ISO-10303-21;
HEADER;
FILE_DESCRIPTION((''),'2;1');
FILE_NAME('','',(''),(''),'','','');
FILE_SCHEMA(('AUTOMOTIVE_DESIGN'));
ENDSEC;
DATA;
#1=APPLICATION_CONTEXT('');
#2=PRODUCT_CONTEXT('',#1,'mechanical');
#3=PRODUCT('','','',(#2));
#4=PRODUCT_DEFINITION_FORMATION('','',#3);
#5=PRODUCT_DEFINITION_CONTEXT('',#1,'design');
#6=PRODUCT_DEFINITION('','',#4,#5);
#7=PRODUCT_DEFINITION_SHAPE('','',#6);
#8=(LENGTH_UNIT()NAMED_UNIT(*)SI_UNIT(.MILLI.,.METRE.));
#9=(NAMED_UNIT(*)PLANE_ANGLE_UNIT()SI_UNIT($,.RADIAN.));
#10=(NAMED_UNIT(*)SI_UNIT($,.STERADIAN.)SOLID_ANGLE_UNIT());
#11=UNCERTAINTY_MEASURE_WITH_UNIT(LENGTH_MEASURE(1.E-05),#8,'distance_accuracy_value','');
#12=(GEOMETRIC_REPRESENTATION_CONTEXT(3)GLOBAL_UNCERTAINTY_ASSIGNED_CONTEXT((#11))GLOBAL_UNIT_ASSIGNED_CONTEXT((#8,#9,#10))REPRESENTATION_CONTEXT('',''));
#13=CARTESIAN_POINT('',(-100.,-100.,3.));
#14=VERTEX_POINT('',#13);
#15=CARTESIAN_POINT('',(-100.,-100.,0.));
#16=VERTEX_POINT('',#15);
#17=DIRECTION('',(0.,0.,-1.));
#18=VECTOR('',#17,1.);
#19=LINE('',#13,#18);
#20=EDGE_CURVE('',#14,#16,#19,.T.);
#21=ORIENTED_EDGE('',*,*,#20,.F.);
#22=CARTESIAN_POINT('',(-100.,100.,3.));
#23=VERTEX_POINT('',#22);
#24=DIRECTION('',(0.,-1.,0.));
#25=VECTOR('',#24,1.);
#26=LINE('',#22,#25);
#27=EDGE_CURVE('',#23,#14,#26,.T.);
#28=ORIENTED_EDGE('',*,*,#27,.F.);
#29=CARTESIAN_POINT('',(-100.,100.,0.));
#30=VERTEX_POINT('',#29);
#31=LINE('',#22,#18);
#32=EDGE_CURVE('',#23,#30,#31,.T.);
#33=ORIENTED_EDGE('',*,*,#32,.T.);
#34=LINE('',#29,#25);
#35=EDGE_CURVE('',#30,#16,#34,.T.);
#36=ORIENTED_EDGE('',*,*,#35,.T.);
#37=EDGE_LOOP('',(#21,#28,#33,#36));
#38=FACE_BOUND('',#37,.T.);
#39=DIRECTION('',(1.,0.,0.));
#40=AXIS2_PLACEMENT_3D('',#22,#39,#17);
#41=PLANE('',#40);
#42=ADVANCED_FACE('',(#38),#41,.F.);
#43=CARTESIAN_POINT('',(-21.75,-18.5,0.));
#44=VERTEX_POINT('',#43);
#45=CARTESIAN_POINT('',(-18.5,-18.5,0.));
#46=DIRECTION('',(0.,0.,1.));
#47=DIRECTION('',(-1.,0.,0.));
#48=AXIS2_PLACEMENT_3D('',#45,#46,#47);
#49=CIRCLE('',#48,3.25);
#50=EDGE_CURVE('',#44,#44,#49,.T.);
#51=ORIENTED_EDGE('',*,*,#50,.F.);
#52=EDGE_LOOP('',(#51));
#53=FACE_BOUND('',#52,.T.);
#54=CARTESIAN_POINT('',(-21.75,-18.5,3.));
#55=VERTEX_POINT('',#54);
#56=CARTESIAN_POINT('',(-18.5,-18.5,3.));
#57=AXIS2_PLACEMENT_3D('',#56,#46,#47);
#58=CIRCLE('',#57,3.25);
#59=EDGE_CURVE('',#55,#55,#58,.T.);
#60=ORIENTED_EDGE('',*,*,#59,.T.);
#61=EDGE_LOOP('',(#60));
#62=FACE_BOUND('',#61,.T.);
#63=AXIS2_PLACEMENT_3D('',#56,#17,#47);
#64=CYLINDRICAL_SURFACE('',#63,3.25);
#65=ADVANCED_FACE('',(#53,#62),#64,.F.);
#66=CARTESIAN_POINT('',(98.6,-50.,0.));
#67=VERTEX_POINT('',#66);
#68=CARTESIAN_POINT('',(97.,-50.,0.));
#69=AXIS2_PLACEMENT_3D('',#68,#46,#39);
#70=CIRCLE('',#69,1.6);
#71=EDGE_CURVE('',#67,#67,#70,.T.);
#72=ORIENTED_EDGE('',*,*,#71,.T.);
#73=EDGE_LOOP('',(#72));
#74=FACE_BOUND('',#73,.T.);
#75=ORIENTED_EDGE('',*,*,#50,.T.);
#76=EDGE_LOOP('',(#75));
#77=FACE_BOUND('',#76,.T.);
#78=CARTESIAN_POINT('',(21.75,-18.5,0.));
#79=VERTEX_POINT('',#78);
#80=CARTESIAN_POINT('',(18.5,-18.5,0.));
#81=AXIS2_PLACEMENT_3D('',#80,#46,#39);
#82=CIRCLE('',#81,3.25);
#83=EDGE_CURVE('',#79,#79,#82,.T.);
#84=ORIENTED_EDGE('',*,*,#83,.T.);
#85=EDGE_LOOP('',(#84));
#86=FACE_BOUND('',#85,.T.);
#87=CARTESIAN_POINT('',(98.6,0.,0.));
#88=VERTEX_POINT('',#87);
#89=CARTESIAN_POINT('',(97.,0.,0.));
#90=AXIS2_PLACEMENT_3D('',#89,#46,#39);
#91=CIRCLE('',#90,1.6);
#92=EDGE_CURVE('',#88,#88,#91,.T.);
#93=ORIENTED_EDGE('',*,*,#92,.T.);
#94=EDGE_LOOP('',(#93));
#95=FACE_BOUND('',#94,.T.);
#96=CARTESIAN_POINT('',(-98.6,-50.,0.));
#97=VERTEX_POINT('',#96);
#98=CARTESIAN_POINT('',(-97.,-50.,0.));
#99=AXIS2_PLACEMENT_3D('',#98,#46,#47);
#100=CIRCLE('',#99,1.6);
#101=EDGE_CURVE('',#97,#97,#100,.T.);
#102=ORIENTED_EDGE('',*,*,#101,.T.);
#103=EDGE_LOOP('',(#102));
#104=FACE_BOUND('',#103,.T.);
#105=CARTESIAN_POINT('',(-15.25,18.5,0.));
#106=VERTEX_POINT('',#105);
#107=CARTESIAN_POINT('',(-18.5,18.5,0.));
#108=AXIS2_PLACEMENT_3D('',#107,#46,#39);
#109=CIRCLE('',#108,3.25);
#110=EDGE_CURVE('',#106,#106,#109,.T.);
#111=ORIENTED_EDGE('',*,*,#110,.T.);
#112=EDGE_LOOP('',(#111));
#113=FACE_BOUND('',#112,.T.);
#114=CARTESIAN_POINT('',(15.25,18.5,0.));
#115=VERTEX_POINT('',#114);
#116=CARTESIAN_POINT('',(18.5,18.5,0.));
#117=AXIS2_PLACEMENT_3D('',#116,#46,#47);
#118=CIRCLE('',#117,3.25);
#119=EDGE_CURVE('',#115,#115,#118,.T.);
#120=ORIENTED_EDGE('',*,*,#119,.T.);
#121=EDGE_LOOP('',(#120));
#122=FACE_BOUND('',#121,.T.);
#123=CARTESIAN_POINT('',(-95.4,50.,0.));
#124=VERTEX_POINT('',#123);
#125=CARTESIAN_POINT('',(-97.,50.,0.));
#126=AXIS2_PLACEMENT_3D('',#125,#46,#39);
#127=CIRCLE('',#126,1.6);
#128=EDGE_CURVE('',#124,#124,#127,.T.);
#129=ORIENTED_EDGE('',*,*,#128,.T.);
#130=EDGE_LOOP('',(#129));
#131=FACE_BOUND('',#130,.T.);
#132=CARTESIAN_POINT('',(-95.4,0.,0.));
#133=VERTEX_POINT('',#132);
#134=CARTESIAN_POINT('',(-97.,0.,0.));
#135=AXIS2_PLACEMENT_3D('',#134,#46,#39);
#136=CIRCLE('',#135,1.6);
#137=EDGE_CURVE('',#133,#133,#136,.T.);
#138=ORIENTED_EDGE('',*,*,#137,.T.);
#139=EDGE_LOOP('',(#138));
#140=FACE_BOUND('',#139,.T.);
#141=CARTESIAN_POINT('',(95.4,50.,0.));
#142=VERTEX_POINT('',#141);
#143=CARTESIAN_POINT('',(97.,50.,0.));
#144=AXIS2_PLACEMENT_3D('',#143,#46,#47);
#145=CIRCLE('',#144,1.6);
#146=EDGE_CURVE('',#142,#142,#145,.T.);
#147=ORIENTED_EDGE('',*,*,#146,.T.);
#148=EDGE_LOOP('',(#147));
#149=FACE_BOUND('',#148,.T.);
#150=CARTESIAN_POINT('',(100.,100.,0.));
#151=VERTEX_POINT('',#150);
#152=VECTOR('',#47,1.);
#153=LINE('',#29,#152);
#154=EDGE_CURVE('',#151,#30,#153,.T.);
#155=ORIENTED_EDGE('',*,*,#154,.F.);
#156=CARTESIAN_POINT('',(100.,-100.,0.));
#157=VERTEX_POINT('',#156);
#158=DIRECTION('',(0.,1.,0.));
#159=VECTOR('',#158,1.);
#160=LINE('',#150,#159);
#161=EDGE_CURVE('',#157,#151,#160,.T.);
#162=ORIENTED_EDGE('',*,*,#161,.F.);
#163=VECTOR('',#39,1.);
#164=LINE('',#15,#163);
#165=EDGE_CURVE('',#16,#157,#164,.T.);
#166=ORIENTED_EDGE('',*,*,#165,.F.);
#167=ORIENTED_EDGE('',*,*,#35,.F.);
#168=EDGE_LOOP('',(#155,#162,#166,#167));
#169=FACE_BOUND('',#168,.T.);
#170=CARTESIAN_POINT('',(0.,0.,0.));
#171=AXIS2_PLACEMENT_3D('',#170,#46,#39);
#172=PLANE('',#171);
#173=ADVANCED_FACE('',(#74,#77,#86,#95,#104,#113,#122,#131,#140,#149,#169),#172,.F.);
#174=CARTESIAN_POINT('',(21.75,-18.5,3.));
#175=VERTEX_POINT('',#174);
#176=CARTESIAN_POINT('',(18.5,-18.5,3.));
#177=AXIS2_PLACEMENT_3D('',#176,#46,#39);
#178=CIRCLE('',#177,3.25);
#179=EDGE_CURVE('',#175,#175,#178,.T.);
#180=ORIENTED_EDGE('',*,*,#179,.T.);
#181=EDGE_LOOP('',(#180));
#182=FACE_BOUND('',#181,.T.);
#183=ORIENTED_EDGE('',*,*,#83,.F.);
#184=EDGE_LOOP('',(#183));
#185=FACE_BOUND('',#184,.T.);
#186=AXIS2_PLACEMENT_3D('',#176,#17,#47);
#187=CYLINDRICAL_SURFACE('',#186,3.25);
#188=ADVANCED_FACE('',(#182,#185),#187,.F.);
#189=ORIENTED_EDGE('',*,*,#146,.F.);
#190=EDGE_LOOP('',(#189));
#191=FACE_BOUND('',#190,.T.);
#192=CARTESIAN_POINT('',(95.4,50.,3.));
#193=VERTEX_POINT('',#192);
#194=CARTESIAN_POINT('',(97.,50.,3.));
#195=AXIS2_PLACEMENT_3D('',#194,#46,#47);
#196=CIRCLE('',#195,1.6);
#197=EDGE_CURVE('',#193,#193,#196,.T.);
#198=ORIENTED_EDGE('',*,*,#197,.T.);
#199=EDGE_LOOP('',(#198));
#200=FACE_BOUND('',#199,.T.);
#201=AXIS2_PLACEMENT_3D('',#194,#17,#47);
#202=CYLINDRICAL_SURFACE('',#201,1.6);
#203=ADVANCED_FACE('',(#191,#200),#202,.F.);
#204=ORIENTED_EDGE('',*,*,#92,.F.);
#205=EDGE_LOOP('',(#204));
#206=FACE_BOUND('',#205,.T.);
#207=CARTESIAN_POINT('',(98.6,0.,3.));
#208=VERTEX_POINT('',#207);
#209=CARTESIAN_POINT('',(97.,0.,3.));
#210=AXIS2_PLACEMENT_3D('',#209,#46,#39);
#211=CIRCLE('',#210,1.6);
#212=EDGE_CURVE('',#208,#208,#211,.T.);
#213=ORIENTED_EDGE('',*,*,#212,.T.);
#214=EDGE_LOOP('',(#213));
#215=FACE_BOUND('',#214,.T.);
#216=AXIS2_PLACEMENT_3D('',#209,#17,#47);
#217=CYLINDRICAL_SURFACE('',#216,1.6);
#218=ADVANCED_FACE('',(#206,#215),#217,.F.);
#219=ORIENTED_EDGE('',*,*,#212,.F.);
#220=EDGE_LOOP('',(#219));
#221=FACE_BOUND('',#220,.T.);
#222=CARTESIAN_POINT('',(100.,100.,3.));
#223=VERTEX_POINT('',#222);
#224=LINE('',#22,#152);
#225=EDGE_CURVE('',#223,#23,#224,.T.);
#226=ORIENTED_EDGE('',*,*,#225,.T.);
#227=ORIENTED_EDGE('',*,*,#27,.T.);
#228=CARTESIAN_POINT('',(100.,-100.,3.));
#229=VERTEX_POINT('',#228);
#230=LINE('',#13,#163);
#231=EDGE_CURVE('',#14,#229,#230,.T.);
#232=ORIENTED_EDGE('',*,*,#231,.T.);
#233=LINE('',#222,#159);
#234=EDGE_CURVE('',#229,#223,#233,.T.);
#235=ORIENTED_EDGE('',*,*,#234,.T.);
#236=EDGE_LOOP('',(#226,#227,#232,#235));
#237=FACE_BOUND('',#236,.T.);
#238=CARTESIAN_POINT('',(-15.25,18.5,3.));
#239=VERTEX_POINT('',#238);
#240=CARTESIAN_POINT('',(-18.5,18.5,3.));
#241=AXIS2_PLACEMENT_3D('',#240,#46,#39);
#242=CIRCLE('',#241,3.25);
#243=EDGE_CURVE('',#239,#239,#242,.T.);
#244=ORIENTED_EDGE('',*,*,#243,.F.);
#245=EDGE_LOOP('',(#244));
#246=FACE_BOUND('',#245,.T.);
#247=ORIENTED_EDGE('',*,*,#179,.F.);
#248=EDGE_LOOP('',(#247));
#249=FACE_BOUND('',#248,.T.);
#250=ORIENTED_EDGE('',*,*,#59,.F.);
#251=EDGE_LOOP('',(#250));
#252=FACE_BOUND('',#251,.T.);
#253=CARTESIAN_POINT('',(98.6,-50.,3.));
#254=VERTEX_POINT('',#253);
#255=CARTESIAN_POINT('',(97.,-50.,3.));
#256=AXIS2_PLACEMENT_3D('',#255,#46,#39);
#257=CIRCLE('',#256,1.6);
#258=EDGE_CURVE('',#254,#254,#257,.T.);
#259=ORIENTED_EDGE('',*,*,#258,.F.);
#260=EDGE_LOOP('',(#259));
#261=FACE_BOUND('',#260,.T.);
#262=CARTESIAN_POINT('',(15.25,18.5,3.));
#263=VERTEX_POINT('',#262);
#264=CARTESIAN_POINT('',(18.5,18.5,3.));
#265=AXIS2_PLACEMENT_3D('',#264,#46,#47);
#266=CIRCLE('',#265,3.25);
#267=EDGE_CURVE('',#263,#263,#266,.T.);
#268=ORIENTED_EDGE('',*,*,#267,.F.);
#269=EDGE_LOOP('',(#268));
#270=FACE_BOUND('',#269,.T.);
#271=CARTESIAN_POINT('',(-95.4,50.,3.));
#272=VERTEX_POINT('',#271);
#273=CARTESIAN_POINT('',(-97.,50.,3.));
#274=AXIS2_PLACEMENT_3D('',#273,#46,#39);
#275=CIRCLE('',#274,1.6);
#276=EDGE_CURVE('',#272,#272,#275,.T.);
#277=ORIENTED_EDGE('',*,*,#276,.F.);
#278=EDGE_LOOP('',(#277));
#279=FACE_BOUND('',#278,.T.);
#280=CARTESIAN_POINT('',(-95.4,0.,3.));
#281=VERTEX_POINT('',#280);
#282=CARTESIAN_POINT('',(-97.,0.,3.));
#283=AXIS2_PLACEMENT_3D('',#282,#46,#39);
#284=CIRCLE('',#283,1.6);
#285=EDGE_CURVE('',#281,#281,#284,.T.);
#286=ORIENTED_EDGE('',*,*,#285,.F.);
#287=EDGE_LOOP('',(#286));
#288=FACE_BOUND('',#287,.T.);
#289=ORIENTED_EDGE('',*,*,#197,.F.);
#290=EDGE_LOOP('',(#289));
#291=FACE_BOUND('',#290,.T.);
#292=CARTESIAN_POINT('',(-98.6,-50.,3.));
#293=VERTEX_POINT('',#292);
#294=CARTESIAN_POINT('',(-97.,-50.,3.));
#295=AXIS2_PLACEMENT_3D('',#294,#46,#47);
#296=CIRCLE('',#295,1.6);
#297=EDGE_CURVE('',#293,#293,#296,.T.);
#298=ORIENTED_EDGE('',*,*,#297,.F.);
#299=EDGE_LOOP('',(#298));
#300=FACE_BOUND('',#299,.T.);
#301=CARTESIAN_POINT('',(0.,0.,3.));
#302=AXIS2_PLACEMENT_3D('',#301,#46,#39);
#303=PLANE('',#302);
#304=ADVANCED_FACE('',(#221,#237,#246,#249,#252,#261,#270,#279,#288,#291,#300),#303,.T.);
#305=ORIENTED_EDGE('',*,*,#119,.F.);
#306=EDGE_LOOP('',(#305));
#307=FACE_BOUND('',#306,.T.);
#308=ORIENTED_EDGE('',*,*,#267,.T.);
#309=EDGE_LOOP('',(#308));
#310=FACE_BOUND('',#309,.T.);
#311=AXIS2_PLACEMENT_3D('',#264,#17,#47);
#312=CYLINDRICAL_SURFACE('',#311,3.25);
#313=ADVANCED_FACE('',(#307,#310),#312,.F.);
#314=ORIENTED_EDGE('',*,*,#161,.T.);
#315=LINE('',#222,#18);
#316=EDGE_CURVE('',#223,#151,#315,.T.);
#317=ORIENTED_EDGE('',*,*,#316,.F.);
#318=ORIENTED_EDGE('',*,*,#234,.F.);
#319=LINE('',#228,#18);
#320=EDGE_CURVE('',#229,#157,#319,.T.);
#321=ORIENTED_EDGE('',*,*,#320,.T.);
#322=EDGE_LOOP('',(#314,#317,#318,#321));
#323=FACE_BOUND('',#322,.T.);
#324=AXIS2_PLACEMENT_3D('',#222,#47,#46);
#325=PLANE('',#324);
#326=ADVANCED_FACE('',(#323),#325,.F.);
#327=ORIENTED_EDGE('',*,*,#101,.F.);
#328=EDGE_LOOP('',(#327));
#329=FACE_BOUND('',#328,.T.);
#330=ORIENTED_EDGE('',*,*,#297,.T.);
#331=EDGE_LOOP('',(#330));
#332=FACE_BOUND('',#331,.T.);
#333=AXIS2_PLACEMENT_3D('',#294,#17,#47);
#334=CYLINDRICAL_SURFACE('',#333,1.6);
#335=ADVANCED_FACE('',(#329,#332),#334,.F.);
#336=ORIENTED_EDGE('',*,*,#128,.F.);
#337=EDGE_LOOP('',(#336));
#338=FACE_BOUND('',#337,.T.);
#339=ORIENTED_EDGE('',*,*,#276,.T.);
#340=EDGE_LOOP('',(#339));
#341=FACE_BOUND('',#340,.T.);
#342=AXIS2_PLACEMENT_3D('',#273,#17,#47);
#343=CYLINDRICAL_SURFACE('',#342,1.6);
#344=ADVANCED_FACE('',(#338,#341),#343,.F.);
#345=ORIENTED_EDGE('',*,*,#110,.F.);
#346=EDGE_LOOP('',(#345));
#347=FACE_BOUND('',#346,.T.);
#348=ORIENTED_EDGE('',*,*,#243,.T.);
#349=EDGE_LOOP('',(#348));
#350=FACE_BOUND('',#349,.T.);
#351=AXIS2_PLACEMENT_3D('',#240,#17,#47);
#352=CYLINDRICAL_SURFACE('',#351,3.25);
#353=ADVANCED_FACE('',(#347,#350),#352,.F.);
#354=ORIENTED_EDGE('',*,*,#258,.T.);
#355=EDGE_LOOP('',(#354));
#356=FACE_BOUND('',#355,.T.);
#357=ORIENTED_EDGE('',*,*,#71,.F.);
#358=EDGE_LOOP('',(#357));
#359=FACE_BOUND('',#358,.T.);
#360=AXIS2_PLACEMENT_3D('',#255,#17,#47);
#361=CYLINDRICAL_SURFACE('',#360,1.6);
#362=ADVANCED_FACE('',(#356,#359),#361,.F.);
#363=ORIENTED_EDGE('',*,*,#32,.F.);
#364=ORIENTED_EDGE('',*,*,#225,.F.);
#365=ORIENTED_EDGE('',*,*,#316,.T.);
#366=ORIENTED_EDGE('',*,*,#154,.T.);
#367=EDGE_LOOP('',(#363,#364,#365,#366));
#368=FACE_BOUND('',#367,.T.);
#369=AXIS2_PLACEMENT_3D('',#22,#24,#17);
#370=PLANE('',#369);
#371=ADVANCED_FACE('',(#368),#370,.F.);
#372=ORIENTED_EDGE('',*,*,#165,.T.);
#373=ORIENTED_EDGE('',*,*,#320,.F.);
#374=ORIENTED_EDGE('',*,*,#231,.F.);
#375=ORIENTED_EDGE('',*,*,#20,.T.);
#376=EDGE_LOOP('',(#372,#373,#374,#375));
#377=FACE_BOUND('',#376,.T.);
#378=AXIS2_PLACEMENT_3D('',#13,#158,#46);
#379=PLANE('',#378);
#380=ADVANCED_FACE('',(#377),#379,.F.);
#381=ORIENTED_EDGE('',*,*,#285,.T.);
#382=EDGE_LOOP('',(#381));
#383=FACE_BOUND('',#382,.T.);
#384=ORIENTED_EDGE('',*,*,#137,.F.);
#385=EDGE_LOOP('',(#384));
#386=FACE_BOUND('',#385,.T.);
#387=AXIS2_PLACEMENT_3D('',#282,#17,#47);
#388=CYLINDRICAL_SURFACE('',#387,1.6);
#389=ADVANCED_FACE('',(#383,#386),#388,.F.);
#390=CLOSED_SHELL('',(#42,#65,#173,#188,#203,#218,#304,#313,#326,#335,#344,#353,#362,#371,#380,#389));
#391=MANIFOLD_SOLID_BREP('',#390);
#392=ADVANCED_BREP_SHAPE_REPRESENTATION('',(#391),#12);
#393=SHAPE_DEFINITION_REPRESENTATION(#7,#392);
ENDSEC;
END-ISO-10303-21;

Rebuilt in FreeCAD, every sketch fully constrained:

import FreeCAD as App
import Part
import Sketcher

doc = App.newDocument("Part")
params = doc.addObject("Spreadsheet::Sheet", "Params")
for row, (alias, value) in enumerate([
    ("sketch1_diameter", "3.2 mm"),
    ("sketch1_diameter2", "6.5 mm"),
    ("sketch1_width", "200 mm"),
    ("pad1_length", "3 mm"),
], start=1):
    params.set(f"A{row}", alias)
    params.set(f"B{row}", "=" + value)
    params.setAlias(f"B{row}", alias)

body = doc.addObject("PartDesign::Body", "Body")

sketch1 = body.newObject("Sketcher::SketchObject", "Sketch")
sketch1.AttachmentSupport = (doc.getObject("XY_Plane"), [""])
sketch1.MapMode = "FlatFace"
sketch1.addGeometry(Part.LineSegment(App.Vector(-100, 100, 0), App.Vector(-100, -100, 0)), False)
sketch1.addGeometry(Part.LineSegment(App.Vector(-100, -100, 0), App.Vector(100, -100, 0)), False)
sketch1.addGeometry(Part.LineSegment(App.Vector(100, -100, 0), App.Vector(100, 100, 0)), False)
sketch1.addGeometry(Part.LineSegment(App.Vector(100, 100, 0), App.Vector(-100, 100, 0)), False)
sketch1.addGeometry(Part.Circle(App.Vector(-97, -50, 0), App.Vector(0, 0, 1), 1.6), False)
sketch1.addGeometry(Part.Circle(App.Vector(-18.5, -18.5, 0), App.Vector(0, 0, 1), 3.2), False)
sketch1.addGeometry(Part.Circle(App.Vector(97, -50, 0), App.Vector(0, 0, 1), 1.6), False)
sketch1.addGeometry(Part.Circle(App.Vector(18.5, -18.5, 0), App.Vector(0, 0, 1), 3.2), False)
sketch1.addGeometry(Part.Circle(App.Vector(-97, 0, 0), App.Vector(0, 0, 1), 1.6), False)
sketch1.addGeometry(Part.Circle(App.Vector(-18.5, 18.5, 0), App.Vector(0, 0, 1), 3.2), False)
sketch1.addGeometry(Part.Circle(App.Vector(-97, 50, 0), App.Vector(0, 0, 1), 1.6), False)
sketch1.addGeometry(Part.Circle(App.Vector(18.5, 18.5, 0), App.Vector(0, 0, 1), 3.2), False)
sketch1.addGeometry(Part.Circle(App.Vector(97, 0, 0), App.Vector(0, 0, 1), 1.6), False)
sketch1.addGeometry(Part.Circle(App.Vector(97, 50, 0), App.Vector(0, 0, 1), 1.6), False)
sketch1.addConstraint(Sketcher.Constraint("Coincident", 0, 2, 1, 1))
sketch1.addConstraint(Sketcher.Constraint("Coincident", 1, 2, 2, 1))
sketch1.addConstraint(Sketcher.Constraint("Coincident", 2, 2, 3, 1))
sketch1.addConstraint(Sketcher.Constraint("Coincident", 3, 2, 0, 1))
sketch1.addConstraint(Sketcher.Constraint("Vertical", 0))
sketch1.addConstraint(Sketcher.Constraint("Horizontal", 1))
sketch1.addConstraint(Sketcher.Constraint("Vertical", 2))
sketch1.addConstraint(Sketcher.Constraint("Horizontal", 3))
sketch1.addConstraint(Sketcher.Constraint("Equal", 4, 6))
sketch1.addConstraint(Sketcher.Constraint("Equal", 5, 7))
sketch1.addConstraint(Sketcher.Constraint("Equal", 6, 8))
sketch1.addConstraint(Sketcher.Constraint("Equal", 7, 9))
sketch1.addConstraint(Sketcher.Constraint("Equal", 8, 10))
sketch1.addConstraint(Sketcher.Constraint("Equal", 9, 11))
sketch1.addConstraint(Sketcher.Constraint("Equal", 10, 12))
sketch1.addConstraint(Sketcher.Constraint("Equal", 12, 13))
sketch1.addConstraint(Sketcher.Constraint("Symmetric", 7, 3, 9, 3, -1, 1))
sketch1.addConstraint(Sketcher.Constraint("Symmetric", 6, 3, 10, 3, -1, 1))
sketch1.addConstraint(Sketcher.Constraint("Symmetric", 5, 3, 11, 3, -1, 1))
sketch1.addConstraint(Sketcher.Constraint("Symmetric", 8, 3, 12, 3, -1, 1))
sketch1.addConstraint(Sketcher.Constraint("Symmetric", 4, 3, 13, 3, -1, 1))
sketch1.addConstraint(Sketcher.Constraint("Symmetric", 0, 2, 2, 2, -1, 1))
sketch1.addConstraint(Sketcher.Constraint("Symmetric", 4, 3, 6, 3, -2))
sketch1.addConstraint(Sketcher.Constraint("Symmetric", 5, 3, 7, 3, -2))
sketch1.addConstraint(Sketcher.Constraint("PointOnObject", 8, 3, -1))
sketch1.addConstraint(Sketcher.Constraint("Vertical", 4, 3, 8, 3))
sketch1.addConstraint(Sketcher.Constraint("Equal", 3, 0))
sketch1.addConstraint(Sketcher.Constraint("Diameter", 4, 3.2))
sketch1.addConstraint(Sketcher.Constraint("Diameter", 5, 6.5))
sketch1.addConstraint(Sketcher.Constraint("DistanceX", 1, 1, 1, 2, 200.0))
sketch1.addConstraint(Sketcher.Constraint("DistanceX", 4, 3, -1, 1, 97.0))
sketch1.addConstraint(Sketcher.Constraint("DistanceY", 4, 3, -1, 1, 50.0))
sketch1.addConstraint(Sketcher.Constraint("DistanceX", 5, 3, 7, 3, 37.0))
sketch1.addConstraint(Sketcher.Constraint("DistanceY", 5, 3, 9, 3, 37.0))
sketch1.setExpression("Constraints[27]", "Params.sketch1_diameter")
sketch1.setExpression("Constraints[28]", "Params.sketch1_diameter2")
sketch1.setExpression("Constraints[29]", "Params.sketch1_width")
pad1 = body.newObject("PartDesign::Pad", "Pad")
pad1.Profile = sketch1
pad1.setExpression("Length", "Params.pad1_length")

doc.recompute()
